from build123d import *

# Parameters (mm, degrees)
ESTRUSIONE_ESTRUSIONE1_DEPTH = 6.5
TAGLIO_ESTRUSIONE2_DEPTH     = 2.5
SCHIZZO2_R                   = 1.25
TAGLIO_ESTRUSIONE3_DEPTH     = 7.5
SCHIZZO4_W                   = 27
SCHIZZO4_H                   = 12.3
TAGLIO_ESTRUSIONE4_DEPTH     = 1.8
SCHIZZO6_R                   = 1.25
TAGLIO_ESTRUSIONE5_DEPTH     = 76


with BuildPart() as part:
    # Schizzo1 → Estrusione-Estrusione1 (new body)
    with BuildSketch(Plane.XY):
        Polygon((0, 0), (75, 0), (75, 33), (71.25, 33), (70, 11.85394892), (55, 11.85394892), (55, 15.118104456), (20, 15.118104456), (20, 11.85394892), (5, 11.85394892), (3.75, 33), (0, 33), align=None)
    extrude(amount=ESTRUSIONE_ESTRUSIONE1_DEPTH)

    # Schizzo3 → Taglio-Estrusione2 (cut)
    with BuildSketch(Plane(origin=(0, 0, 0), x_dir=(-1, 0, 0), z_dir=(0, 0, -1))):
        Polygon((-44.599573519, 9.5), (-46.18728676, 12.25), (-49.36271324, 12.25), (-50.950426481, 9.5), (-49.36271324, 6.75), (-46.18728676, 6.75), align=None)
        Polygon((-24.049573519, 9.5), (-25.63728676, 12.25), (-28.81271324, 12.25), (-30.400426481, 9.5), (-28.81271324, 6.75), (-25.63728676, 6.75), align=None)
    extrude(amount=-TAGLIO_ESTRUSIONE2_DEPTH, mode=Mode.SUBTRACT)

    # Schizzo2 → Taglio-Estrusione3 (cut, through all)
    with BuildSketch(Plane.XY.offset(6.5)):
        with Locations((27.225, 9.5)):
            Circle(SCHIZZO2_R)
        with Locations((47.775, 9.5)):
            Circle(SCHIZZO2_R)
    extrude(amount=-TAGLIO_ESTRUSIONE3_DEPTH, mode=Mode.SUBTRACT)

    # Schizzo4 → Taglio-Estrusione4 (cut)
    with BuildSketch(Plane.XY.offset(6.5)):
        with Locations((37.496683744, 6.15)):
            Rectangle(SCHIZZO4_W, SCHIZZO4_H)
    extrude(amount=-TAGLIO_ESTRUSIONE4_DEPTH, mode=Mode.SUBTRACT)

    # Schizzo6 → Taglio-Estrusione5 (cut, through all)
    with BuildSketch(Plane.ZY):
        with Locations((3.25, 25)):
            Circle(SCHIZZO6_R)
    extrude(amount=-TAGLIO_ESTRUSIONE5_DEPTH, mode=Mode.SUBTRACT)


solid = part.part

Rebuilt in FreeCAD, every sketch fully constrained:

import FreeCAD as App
import Part
import Sketcher
Q = App.Units.Quantity


def add_polygon(sketch, points):
    """Adds a closed chain of lines whose ends are joined by coincident constraints."""
    first, n = sketch.GeometryCount, len(points)
    for a, b in zip(points, points[1:] + points[:1]):
        sketch.addGeometry(Part.LineSegment(App.Vector(*a, 0), App.Vector(*b, 0)), False)
    for i in range(n):
        sketch.addConstraint(Sketcher.Constraint("Coincident", first + i, 2, first + (i + 1) % n, 1))

doc = App.newDocument("Part")
body = doc.addObject("PartDesign::Body", "Body")

sketch1 = body.newObject("Sketcher::SketchObject", "Sketch")
sketch1.AttachmentSupport = (doc.getObject("XY_Plane"), [""])
sketch1.MapMode = "FlatFace"
add_polygon(sketch1, [(0, 0), (75, 0), (75, 33), (71.25, 33), (70, 11.853949), (55, 11.853949), (55, 15.118104), (20, 15.118104), (20, 11.853949), (5, 11.853949), (3.75, 33), (0, 33)])
sketch1.addConstraint(Sketcher.Constraint("Horizontal", 0))
sketch1.addConstraint(Sketcher.Constraint("Vertical", 1))
sketch1.addConstraint(Sketcher.Constraint("Horizontal", 2))
sketch1.addConstraint(Sketcher.Constraint("Horizontal", 4))
sketch1.addConstraint(Sketcher.Constraint("Vertical", 5))
sketch1.addConstraint(Sketcher.Constraint("Horizontal", 6))
sketch1.addConstraint(Sketcher.Constraint("Vertical", 7))
sketch1.addConstraint(Sketcher.Constraint("Horizontal", 8))
sketch1.addConstraint(Sketcher.Constraint("Horizontal", 10))
sketch1.addConstraint(Sketcher.Constraint("Vertical", 11))
sketch1.addConstraint(Sketcher.Constraint("Coincident", 11, 2, -1, 1))
sketch1.addConstraint(Sketcher.Constraint("Horizontal", 4, 2, 7, 2))
sketch1.addConstraint(Sketcher.Constraint("Horizontal", 2, 2, 9, 2))
sketch1.addConstraint(Sketcher.Constraint("Equal", 4, 8))
sketch1.addConstraint(Sketcher.Constraint("Equal", 2, 10))
sketch1.addConstraint(Sketcher.Constraint("Equal", 3, 9))
sketch1.addConstraint(Sketcher.Constraint("DistanceX", 0, 1, 0, 2, Q("75 mm")))
sketch1.addConstraint(Sketcher.Constraint("DistanceX", 4, 2, 4, 1, Q("15 mm")))
sketch1.addConstraint(Sketcher.Constraint("DistanceX", 6, 2, 6, 1, Q("35 mm")))
sketch1.addConstraint(Sketcher.Constraint("DistanceY", 1, 1, 1, 2, Q("33 mm")))
sketch1.addConstraint(Sketcher.Constraint("DistanceX", 2, 2, 2, 1, Q("3.75 mm")))
sketch1.addConstraint(Sketcher.Constraint("DistanceY", 5, 1, 5, 2, Q("3.264156 mm")))
sketch1.addConstraint(Sketcher.Constraint("DistanceY", -1, 1, 3, 2, Q("11.853949 mm")))
pad1 = body.newObject("PartDesign::Pad", "Pad")
pad1.Profile = sketch1
pad1.Length = 6.5

sketch2 = body.newObject("Sketcher::SketchObject", "Sketch001")
sketch2.AttachmentSupport = (doc.getObject("XY_Plane"), [""])
sketch2.MapMode = "FlatFace"
add_polygon(sketch2, [(44.599574, 9.5), (46.187287, 12.25), (49.362713, 12.25), (50.950426, 9.5), (49.362713, 6.75), (46.187287, 6.75)])
add_polygon(sketch2, [(24.049574, 9.5), (25.637287, 12.25), (28.812713, 12.25), (30.400426, 9.5), (28.812713, 6.75), (25.637287, 6.75)])
sketch2.addConstraint(Sketcher.Constraint("Horizontal", 1))
sketch2.addConstraint(Sketcher.Constraint("Horizontal", 4))
sketch2.addConstraint(Sketcher.Constraint("Horizontal", 7))
sketch2.addConstraint(Sketcher.Constraint("Horizontal", 10))
sketch2.addConstraint(Sketcher.Constraint("Parallel", 0, 3))
sketch2.addConstraint(Sketcher.Constraint("Parallel", 2, 5))
sketch2.addConstraint(Sketcher.Constraint("Parallel", 3, 6))
sketch2.addConstraint(Sketcher.Constraint("Parallel", 5, 8))
sketch2.addConstraint(Sketcher.Constraint("Parallel", 6, 9))
sketch2.addConstraint(Sketcher.Constraint("Parallel", 8, 11))
sketch2.addConstraint(Sketcher.Constraint("Horizontal", 2, 2, 5, 2))
sketch2.addConstraint(Sketcher.Constraint("Horizontal", 1, 2, 6, 2))
sketch2.addConstraint(Sketcher.Constraint("Horizontal", 5, 2, 8, 2))
sketch2.addConstraint(Sketcher.Constraint("Horizontal", 4, 2, 9, 2))
sketch2.addConstraint(Sketcher.Constraint("Horizontal", 8, 2, 11, 2))
sketch2.addConstraint(Sketcher.Constraint("Vertical", 1, 2, 3, 2))
sketch2.addConstraint(Sketcher.Constraint("Vertical", 0, 2, 4, 2))
sketch2.addConstraint(Sketcher.Constraint("Equal", 4, 7))
sketch2.addConstraint(Sketcher.Constraint("Angle", 0, Q("60 deg")))
sketch2.addConstraint(Sketcher.Constraint("DistanceY", -1, 1, 2, 2, Q("9.5 mm")))
sketch2.addConstraint(Sketcher.Constraint("DistanceY", 3, 2, 1, 2, Q("5.5 mm")))
sketch2.addConstraint(Sketcher.Constraint("DistanceX", 6, 2, 0, 2, Q("20.55 mm")))
sketch2.addConstraint(Sketcher.Constraint("DistanceX", 1, 1, 1, 2, Q("3.175426 mm")))
sketch2.addConstraint(Sketcher.Constraint("DistanceX", -1, 1, 0, 2, Q("46.187287 mm")))
pocket1 = body.newObject("PartDesign::Pocket", "Pocket")
pocket1.Profile = sketch2
pocket1.Length = 2.5
pocket1.Reversed = True

sketch3 = body.newObject("Sketcher::SketchObject", "Sketch002")
sketch3.AttachmentSupport = (doc.getObject("XY_Plane"), [""])
sketch3.MapMode = "FlatFace"
sketch3.AttachmentOffset = App.Placement(App.Vector(0, 0, 6.5), App.Rotation())
sketch3.addGeometry(Part.Circle(App.Vector(27.225, 9.5, 0), App.Vector(0, 0, 1), 1.25), False)
sketch3.addGeometry(Part.Circle(App.Vector(47.775, 9.5, 0), App.Vector(0, 0, 1), 1.25), False)
sketch3.addConstraint(Sketcher.Constraint("Equal", 0, 1))
sketch3.addConstraint(Sketcher.Constraint("Horizontal", 0, 3, 1, 3))
sketch3.addConstraint(Sketcher.Constraint("Diameter", 0, Q("2.5 mm")))
sketch3.addConstraint(Sketcher.Constraint("DistanceY", -1, 1, 0, 3, Q("9.5 mm")))
sketch3.addConstraint(Sketcher.Constraint("DistanceX", 0, 3, 1, 3, Q("20.55 mm")))
sketch3.addConstraint(Sketcher.Constraint("DistanceX", -1, 1, 0, 3, Q("27.225 mm")))
pocket2 = body.newObject("PartDesign::Pocket", "Pocket001")
pocket2.Profile = sketch3
pocket2.Type = "ThroughAll"

sketch4 = body.newObject("Sketcher::SketchObject", "Sketch003")
sketch4.AttachmentSupport = (doc.getObject("XY_Plane"), [""])
sketch4.MapMode = "FlatFace"
sketch4.AttachmentOffset = App.Placement(App.Vector(0, 0, 6.5), App.Rotation())
add_polygon(sketch4, [(23.996684, 12.3), (23.996684, 0), (50.996684, 0), (50.996684, 12.3)])
sketch4.addConstraint(Sketcher.Constraint("Vertical", 0))
sketch4.addConstraint(Sketcher.Constraint("Horizontal", 1))
sketch4.addConstraint(Sketcher.Constraint("Vertical", 2))
sketch4.addConstraint(Sketcher.Constraint("Horizontal", 3))
sketch4.addConstraint(Sketcher.Constraint("PointOnObject", 0, 2, -1))
sketch4.addConstraint(Sketcher.Constraint("DistanceX", 1, 1, 1, 2, Q("27 mm")))
sketch4.addConstraint(Sketcher.Constraint("DistanceY", 0, 2, 0, 1, Q("12.3 mm")))
sketch4.addConstraint(Sketcher.Constraint("DistanceX", -1, 1, 0, 2, Q("23.996684 mm")))
pocket3 = body.newObject("PartDesign::Pocket", "Pocket002")
pocket3.Profile = sketch4
pocket3.Length = 1.8

sketch5 = body.newObject("Sketcher::SketchObject", "Sketch004")
sketch5.AttachmentSupport = (doc.getObject("YZ_Plane"), [""])
sketch5.MapMode = "FlatFace"
sketch5.addGeometry(Part.Circle(App.Vector(25, 3.25, 0), App.Vector(0, 0, 1), 1.25), False)
sketch5.addConstraint(Sketcher.Constraint("Diameter", 0, Q("2.5 mm")))
sketch5.addConstraint(Sketcher.Constraint("DistanceX", -1, 1, 0, 3, Q("25 mm")))
sketch5.addConstraint(Sketcher.Constraint("DistanceY", -1, 1, 0, 3, Q("3.25 mm")))
pocket4 = body.newObject("PartDesign::Pocket", "Pocket003")
pocket4.Profile = sketch5
pocket4.Type = "ThroughAll"
pocket4.Reversed = True

doc.recompute()
